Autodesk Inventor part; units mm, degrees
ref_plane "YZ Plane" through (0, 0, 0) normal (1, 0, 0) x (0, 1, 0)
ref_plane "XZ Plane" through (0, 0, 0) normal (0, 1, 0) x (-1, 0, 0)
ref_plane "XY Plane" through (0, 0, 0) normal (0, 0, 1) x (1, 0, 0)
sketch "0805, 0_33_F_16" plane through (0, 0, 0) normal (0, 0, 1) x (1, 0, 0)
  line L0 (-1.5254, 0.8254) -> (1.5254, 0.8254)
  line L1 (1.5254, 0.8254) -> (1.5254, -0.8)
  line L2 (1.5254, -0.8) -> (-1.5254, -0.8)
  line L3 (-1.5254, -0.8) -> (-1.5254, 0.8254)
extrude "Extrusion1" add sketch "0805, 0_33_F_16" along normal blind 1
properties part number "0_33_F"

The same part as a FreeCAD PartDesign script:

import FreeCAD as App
import Part
import Sketcher

V = App.Vector

doc = App.newDocument("Part")
body = doc.addObject("PartDesign::Body", "Body")

sketch1 = doc.addObject("Sketcher::SketchObject", "Sketch")
body.addObject(sketch1)
sketch1.AttachmentSupport = (doc.XY_Plane, [""])
sketch1.MapMode = "FlatFace"
sketch1.addGeometry([
    Part.LineSegment(V(1.5254, 0.8254, 0), V(-1.5254, 0.8254, 0)),
    Part.LineSegment(V(-1.5254, 0.8254, 0), V(-1.5254, -0.8, 0)),
    Part.LineSegment(V(-1.5254, -0.8, 0), V(1.5254, -0.8, 0)),
    Part.LineSegment(V(1.5254, -0.8, 0), V(1.5254, 0.8254, 0)),
], False)
sketch1.addConstraint([
    Sketcher.Constraint("Coincident", 0, 2, 1, 1),
    Sketcher.Constraint("Coincident", 1, 2, 2, 1),
    Sketcher.Constraint("Coincident", 2, 2, 3, 1),
    Sketcher.Constraint("Coincident", 3, 2, 0, 1),
    Sketcher.Constraint("Horizontal", 0),
    Sketcher.Constraint("Vertical", 1),
    Sketcher.Constraint("Horizontal", 2),
    Sketcher.Constraint("Vertical", 3),
    Sketcher.Constraint("DistanceY", 1, 2, -1, 1, 0.8),
    Sketcher.Constraint("DistanceX", 0, 2, 0, 1, 3.0508),
    Sketcher.Constraint("DistanceY", 1, 2, 1, 1, 1.6254),
    Sketcher.Constraint("DistanceX", 0, 2, -1, 1, 1.5254),
])
pad1 = doc.addObject("PartDesign::Pad", "Pad")
body.addObject(pad1)
pad1.Profile = sketch1
pad1.Length = 1

doc.recompute()
